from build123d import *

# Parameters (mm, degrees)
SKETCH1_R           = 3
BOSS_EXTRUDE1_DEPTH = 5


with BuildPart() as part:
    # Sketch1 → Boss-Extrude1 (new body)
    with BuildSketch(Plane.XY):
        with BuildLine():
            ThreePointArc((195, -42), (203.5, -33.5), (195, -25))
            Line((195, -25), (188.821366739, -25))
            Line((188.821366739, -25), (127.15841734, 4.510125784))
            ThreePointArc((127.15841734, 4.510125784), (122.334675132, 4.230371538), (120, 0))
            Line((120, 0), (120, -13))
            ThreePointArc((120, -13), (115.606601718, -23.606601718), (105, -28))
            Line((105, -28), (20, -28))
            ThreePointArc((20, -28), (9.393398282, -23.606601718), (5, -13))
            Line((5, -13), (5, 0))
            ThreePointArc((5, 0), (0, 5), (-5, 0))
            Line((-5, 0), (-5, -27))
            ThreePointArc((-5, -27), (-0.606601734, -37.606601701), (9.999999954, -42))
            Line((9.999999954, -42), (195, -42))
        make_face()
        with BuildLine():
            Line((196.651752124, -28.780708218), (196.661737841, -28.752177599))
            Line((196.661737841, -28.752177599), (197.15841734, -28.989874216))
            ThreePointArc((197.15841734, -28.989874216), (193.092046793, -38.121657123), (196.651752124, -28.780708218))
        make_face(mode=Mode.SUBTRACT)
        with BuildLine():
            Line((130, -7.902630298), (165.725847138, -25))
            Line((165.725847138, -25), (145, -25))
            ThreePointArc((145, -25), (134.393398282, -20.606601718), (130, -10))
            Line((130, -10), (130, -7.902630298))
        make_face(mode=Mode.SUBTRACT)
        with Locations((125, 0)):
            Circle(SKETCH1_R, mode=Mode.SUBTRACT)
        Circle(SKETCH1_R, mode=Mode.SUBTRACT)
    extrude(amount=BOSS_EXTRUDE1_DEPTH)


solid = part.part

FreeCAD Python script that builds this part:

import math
import FreeCAD as App
import Part
import Sketcher
from FreeCAD import Vector

doc = App.newDocument("Part")
body = doc.addObject("PartDesign::Body", "Body")

# Sketch on XY plane
sketch1 = doc.addObject("Sketcher::SketchObject", "Sketch")
body.addObject(sketch1)
sketch1.AttachmentSupport = (doc.XY_Plane, [""])
sketch1.MapMode = "FlatFace"
sketch1.addGeometry([
    Part.ArcOfCircle(Part.Circle(Vector(195, -33.5, 0), Vector(0, 0, 1), 8.5), math.radians(-90), math.radians(90)),  # 0
    Part.LineSegment(Vector(195, -25, 0), Vector(188.821, -25, 0)),  # 1
    Part.LineSegment(Vector(188.821, -25, 0), Vector(127.158, 4.51, 0)),  # 2
    Part.ArcOfCircle(Part.Circle(Vector(125, 0, 0), Vector(0, 0, 1), 5), math.radians(64), math.radians(180)),  # 3
    Part.LineSegment(Vector(120, 0, 0), Vector(120, -13, 0)),  # 4
    Part.ArcOfCircle(Part.Circle(Vector(105, -13, 0), Vector(0, 0, 1), 15), math.radians(-90), math.radians(0)),  # 5
    Part.LineSegment(Vector(105, -28, 0), Vector(20, -28, 0)),  # 6
    Part.ArcOfCircle(Part.Circle(Vector(20, -13, 0), Vector(0, 0, 1), 15), math.radians(180), math.radians(270)),  # 7
    Part.LineSegment(Vector(5, -13, 0), Vector(5, 0, 0)),  # 8
    Part.ArcOfCircle(Part.Circle(Vector(0, 0, 0), Vector(0, 0, 1), 5), math.radians(0), math.radians(180)),  # 9
    Part.LineSegment(Vector(-5, 0, 0), Vector(-5, -27, 0)),  # 10
    Part.ArcOfCircle(Part.Circle(Vector(10, -27, 0), Vector(0, 0, 1), 15), math.radians(-180), math.radians(-90)),  # 11
    Part.LineSegment(Vector(10, -42, 0), Vector(195, -42, 0)),  # 12
    Part.ArcOfCircle(Part.Circle(Vector(195, -33.5, 0), Vector(0, 0, 1), 5), math.radians(71), math.radians(424)),  # 13
    Part.LineSegment(Vector(196.652, -28.781, 0), Vector(196.662, -28.752, 0)),  # 14
    Part.LineSegment(Vector(196.662, -28.752, 0), Vector(197.158, -28.99, 0)),  # 15
    Part.Circle(Vector(0, 0, 0), Vector(0, 0, 1), 3),  # 16
    Part.LineSegment(Vector(130, -10, 0), Vector(130, -7.903, 0)),  # 17
    Part.LineSegment(Vector(130, -7.903, 0), Vector(165.726, -25, 0)),  # 18
    Part.LineSegment(Vector(165.726, -25, 0), Vector(145, -25, 0)),  # 19
    Part.ArcOfCircle(Part.Circle(Vector(145, -10, 0), Vector(0, 0, 1), 15), math.radians(180), math.radians(270)),  # 20
    Part.Circle(Vector(125, 0, 0), Vector(0, 0, 1), 3),  # 21
], False)
sketch1.addConstraint([
    Sketcher.Constraint("Tangent", 0, 2, 1, 1),
    Sketcher.Constraint("Coincident", 1, 2, 2, 1),
    Sketcher.Constraint("Tangent", 2, 2, 3, 1),
    Sketcher.Constraint("Tangent", 3, 2, 4, 1),
    Sketcher.Constraint("Tangent", 4, 2, 5, 2),
    Sketcher.Constraint("Tangent", 5, 1, 6, 1),
    Sketcher.Constraint("Tangent", 6, 2, 7, 2),
    Sketcher.Constraint("Tangent", 7, 1, 8, 1),
    Sketcher.Constraint("Tangent", 8, 2, 9, 1),
    Sketcher.Constraint("Tangent", 9, 2, 10, 1),
    Sketcher.Constraint("Tangent", 10, 2, 11, 1),
    Sketcher.Constraint("Tangent", 11, 2, 12, 1),
    Sketcher.Constraint("Tangent", 12, 2, 0, 1),
    Sketcher.Constraint("Coincident", 13, 1, 14, 1),
    Sketcher.Constraint("Coincident", 14, 2, 15, 1),
    Sketcher.Constraint("Tangent", 15, 2, 13, 2),
    Sketcher.Constraint("Coincident", 17, 2, 18, 1),
    Sketcher.Constraint("Coincident", 18, 2, 19, 1),
    Sketcher.Constraint("Tangent", 19, 2, 20, 2),
    Sketcher.Constraint("Tangent", 20, 1, 17, 1),
    Sketcher.Constraint("Horizontal", 1),
    Sketcher.Constraint("Vertical", 4),
    Sketcher.Constraint("Horizontal", 6),
    Sketcher.Constraint("Vertical", 8),
    Sketcher.Constraint("Vertical", 10),
    Sketcher.Constraint("Horizontal", 12),
    Sketcher.Constraint("Vertical", 17),
    Sketcher.Constraint("Horizontal", 19),
    Sketcher.Constraint("Coincident", 9, 3, -1, 1),
    Sketcher.Constraint("Coincident", 16, 3, -1, 1),
    Sketcher.Constraint("Coincident", 13, 3, 0, 3),
    Sketcher.Constraint("Coincident", 21, 3, 3, 3),
    Sketcher.Constraint("Equal", 5, 7),
    Sketcher.Constraint("Equal", 3, 9),
    Sketcher.Constraint("Equal", 7, 11),
    Sketcher.Constraint("Equal", 9, 13),
    Sketcher.Constraint("Equal", 11, 20),
    Sketcher.Constraint("Equal", 16, 21),
    Sketcher.Constraint("PointOnObject", 3, 3, -1),
    Sketcher.Constraint("Parallel", 2, 15),
    Sketcher.Constraint("Parallel", 15, 18),
    Sketcher.Constraint("Horizontal", 1, 2, 18, 2),
    Sketcher.Constraint("Diameter", 16, 6.0),
    Sketcher.Constraint("Radius", 3, 5.0),
    Sketcher.Constraint("Radius", 5, 15.0),
    Sketcher.Constraint("Radius", 0, 8.5),
    Sketcher.Constraint("DistanceX", 6, 2, 6, 1, 85.0),
    Sketcher.Constraint("DistanceX", 12, 1, 12, 2, 185.0),
    Sketcher.Constraint("DistanceY", 4, 2, 4, 1, 13.0),
    Sketcher.Constraint("DistanceY", 10, 2, 10, 1, 27.0),
    Sketcher.Constraint("DistanceX", -1, 1, 20, 3, 145.0),
    Sketcher.Constraint("DistanceY", 17, 1, 17, 2, 2.09737),
    Sketcher.Constraint("DistanceX", 1, 2, 1, 1, 6.178633),
    Sketcher.Constraint("DistanceY", 13, 1, -1, 1, 28.780708),
    Sketcher.Constraint("DistanceY", 13, 1, 14, 2, 0.028531),
])
pad1 = doc.addObject("PartDesign::Pad", "Pad")
body.addObject(pad1)
pad1.Profile = sketch1
pad1.Length = 5

doc.recompute()
